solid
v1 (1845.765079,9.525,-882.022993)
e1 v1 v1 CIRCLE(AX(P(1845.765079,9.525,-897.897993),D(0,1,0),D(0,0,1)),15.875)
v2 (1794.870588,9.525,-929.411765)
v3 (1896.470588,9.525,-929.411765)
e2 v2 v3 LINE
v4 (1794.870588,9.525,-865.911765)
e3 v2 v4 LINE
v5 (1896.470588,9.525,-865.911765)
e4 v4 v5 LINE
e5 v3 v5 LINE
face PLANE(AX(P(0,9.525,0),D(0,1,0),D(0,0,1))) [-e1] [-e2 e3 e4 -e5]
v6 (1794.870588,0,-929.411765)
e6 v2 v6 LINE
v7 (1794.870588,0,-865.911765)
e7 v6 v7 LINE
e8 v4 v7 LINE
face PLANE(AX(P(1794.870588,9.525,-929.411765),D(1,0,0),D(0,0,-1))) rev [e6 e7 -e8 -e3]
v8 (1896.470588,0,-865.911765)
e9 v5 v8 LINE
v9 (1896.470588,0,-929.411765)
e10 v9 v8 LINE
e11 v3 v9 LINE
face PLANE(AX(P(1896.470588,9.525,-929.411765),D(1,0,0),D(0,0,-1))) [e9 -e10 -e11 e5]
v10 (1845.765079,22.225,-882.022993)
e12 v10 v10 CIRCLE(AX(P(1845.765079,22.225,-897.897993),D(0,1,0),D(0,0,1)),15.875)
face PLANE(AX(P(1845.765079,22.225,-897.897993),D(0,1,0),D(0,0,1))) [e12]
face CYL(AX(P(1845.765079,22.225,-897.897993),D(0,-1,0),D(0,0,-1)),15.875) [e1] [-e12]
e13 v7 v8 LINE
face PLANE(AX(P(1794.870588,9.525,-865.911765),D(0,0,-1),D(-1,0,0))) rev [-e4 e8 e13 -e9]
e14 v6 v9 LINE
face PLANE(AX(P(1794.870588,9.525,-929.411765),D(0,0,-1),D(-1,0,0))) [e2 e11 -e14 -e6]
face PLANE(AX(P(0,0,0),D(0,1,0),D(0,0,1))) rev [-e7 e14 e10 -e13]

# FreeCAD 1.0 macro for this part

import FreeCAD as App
import Part
import Sketcher
Q = App.Units.Quantity


def add_polygon(sketch, points):
    """Adds a closed chain of lines whose ends are joined by coincident constraints."""
    first, n = sketch.GeometryCount, len(points)
    for a, b in zip(points, points[1:] + points[:1]):
        sketch.addGeometry(Part.LineSegment(App.Vector(*a, 0), App.Vector(*b, 0)), False)
    for i in range(n):
        sketch.addConstraint(Sketcher.Constraint("Coincident", first + i, 2, first + (i + 1) % n, 1))

doc = App.newDocument("Part")
body = doc.addObject("PartDesign::Body", "Body")

# Sketch on XZ plane
sketch1 = doc.addObject("Sketcher::SketchObject", "Sketch")
body.addObject(sketch1)
sketch1.AttachmentSupport = (doc.XZ_Plane, [""])
sketch1.MapMode = "FlatFace"
add_polygon(sketch1, [(1795, -929), (1795, -866), (1896, -866), (1896, -929)])  # lines 0-3
sketch1.addConstraint([
    Sketcher.Constraint("Vertical", 0),
    Sketcher.Constraint("Horizontal", 1),
    Sketcher.Constraint("Vertical", 2),
    Sketcher.Constraint("Horizontal", 3),
    Sketcher.Constraint("DistanceX", 1, 1, 1, 2, Q("4 in")),
    Sketcher.Constraint("DistanceY", 0, 1, 0, 2, Q("2.5 in")),
    Sketcher.Constraint("DistanceX", -1, 1, 0, 2, Q("1794.870588 mm")),
    Sketcher.Constraint("DistanceY", 0, 2, -1, 1, Q("865.911765 mm")),
])
pad1 = doc.addObject("PartDesign::Pad", "Pad")
body.addObject(pad1)
pad1.Profile = sketch1
pad1.Length = Q("0.375 in")
pad1.Reversed = True

# Sketch on XZ plane
sketch2 = doc.addObject("Sketcher::SketchObject", "Sketch001")
body.addObject(sketch2)
sketch2.AttachmentSupport = (doc.XZ_Plane, [""])
sketch2.MapMode = "FlatFace"
sketch2.AttachmentOffset = App.Placement(App.Vector(0, 0, -0.375 * 25.4), App.Rotation())
sketch2.addGeometry(Part.Circle(App.Vector(1846, -898, 0), App.Vector(0, 0, 1), 16), False)
sketch2.addConstraint([
    Sketcher.Constraint("Diameter", 0, Q("1.25 in")),
    Sketcher.Constraint("DistanceX", -1, 1, 0, 3, Q("1845.765079 mm")),
    Sketcher.Constraint("DistanceY", 0, 3, -1, 1, Q("897.897993 mm")),
])
pad2 = doc.addObject("PartDesign::Pad", "Pad001")
body.addObject(pad2)
pad2.Profile = sketch2
pad2.Length = Q("0.5 in")
pad2.Reversed = True

doc.recompute()
